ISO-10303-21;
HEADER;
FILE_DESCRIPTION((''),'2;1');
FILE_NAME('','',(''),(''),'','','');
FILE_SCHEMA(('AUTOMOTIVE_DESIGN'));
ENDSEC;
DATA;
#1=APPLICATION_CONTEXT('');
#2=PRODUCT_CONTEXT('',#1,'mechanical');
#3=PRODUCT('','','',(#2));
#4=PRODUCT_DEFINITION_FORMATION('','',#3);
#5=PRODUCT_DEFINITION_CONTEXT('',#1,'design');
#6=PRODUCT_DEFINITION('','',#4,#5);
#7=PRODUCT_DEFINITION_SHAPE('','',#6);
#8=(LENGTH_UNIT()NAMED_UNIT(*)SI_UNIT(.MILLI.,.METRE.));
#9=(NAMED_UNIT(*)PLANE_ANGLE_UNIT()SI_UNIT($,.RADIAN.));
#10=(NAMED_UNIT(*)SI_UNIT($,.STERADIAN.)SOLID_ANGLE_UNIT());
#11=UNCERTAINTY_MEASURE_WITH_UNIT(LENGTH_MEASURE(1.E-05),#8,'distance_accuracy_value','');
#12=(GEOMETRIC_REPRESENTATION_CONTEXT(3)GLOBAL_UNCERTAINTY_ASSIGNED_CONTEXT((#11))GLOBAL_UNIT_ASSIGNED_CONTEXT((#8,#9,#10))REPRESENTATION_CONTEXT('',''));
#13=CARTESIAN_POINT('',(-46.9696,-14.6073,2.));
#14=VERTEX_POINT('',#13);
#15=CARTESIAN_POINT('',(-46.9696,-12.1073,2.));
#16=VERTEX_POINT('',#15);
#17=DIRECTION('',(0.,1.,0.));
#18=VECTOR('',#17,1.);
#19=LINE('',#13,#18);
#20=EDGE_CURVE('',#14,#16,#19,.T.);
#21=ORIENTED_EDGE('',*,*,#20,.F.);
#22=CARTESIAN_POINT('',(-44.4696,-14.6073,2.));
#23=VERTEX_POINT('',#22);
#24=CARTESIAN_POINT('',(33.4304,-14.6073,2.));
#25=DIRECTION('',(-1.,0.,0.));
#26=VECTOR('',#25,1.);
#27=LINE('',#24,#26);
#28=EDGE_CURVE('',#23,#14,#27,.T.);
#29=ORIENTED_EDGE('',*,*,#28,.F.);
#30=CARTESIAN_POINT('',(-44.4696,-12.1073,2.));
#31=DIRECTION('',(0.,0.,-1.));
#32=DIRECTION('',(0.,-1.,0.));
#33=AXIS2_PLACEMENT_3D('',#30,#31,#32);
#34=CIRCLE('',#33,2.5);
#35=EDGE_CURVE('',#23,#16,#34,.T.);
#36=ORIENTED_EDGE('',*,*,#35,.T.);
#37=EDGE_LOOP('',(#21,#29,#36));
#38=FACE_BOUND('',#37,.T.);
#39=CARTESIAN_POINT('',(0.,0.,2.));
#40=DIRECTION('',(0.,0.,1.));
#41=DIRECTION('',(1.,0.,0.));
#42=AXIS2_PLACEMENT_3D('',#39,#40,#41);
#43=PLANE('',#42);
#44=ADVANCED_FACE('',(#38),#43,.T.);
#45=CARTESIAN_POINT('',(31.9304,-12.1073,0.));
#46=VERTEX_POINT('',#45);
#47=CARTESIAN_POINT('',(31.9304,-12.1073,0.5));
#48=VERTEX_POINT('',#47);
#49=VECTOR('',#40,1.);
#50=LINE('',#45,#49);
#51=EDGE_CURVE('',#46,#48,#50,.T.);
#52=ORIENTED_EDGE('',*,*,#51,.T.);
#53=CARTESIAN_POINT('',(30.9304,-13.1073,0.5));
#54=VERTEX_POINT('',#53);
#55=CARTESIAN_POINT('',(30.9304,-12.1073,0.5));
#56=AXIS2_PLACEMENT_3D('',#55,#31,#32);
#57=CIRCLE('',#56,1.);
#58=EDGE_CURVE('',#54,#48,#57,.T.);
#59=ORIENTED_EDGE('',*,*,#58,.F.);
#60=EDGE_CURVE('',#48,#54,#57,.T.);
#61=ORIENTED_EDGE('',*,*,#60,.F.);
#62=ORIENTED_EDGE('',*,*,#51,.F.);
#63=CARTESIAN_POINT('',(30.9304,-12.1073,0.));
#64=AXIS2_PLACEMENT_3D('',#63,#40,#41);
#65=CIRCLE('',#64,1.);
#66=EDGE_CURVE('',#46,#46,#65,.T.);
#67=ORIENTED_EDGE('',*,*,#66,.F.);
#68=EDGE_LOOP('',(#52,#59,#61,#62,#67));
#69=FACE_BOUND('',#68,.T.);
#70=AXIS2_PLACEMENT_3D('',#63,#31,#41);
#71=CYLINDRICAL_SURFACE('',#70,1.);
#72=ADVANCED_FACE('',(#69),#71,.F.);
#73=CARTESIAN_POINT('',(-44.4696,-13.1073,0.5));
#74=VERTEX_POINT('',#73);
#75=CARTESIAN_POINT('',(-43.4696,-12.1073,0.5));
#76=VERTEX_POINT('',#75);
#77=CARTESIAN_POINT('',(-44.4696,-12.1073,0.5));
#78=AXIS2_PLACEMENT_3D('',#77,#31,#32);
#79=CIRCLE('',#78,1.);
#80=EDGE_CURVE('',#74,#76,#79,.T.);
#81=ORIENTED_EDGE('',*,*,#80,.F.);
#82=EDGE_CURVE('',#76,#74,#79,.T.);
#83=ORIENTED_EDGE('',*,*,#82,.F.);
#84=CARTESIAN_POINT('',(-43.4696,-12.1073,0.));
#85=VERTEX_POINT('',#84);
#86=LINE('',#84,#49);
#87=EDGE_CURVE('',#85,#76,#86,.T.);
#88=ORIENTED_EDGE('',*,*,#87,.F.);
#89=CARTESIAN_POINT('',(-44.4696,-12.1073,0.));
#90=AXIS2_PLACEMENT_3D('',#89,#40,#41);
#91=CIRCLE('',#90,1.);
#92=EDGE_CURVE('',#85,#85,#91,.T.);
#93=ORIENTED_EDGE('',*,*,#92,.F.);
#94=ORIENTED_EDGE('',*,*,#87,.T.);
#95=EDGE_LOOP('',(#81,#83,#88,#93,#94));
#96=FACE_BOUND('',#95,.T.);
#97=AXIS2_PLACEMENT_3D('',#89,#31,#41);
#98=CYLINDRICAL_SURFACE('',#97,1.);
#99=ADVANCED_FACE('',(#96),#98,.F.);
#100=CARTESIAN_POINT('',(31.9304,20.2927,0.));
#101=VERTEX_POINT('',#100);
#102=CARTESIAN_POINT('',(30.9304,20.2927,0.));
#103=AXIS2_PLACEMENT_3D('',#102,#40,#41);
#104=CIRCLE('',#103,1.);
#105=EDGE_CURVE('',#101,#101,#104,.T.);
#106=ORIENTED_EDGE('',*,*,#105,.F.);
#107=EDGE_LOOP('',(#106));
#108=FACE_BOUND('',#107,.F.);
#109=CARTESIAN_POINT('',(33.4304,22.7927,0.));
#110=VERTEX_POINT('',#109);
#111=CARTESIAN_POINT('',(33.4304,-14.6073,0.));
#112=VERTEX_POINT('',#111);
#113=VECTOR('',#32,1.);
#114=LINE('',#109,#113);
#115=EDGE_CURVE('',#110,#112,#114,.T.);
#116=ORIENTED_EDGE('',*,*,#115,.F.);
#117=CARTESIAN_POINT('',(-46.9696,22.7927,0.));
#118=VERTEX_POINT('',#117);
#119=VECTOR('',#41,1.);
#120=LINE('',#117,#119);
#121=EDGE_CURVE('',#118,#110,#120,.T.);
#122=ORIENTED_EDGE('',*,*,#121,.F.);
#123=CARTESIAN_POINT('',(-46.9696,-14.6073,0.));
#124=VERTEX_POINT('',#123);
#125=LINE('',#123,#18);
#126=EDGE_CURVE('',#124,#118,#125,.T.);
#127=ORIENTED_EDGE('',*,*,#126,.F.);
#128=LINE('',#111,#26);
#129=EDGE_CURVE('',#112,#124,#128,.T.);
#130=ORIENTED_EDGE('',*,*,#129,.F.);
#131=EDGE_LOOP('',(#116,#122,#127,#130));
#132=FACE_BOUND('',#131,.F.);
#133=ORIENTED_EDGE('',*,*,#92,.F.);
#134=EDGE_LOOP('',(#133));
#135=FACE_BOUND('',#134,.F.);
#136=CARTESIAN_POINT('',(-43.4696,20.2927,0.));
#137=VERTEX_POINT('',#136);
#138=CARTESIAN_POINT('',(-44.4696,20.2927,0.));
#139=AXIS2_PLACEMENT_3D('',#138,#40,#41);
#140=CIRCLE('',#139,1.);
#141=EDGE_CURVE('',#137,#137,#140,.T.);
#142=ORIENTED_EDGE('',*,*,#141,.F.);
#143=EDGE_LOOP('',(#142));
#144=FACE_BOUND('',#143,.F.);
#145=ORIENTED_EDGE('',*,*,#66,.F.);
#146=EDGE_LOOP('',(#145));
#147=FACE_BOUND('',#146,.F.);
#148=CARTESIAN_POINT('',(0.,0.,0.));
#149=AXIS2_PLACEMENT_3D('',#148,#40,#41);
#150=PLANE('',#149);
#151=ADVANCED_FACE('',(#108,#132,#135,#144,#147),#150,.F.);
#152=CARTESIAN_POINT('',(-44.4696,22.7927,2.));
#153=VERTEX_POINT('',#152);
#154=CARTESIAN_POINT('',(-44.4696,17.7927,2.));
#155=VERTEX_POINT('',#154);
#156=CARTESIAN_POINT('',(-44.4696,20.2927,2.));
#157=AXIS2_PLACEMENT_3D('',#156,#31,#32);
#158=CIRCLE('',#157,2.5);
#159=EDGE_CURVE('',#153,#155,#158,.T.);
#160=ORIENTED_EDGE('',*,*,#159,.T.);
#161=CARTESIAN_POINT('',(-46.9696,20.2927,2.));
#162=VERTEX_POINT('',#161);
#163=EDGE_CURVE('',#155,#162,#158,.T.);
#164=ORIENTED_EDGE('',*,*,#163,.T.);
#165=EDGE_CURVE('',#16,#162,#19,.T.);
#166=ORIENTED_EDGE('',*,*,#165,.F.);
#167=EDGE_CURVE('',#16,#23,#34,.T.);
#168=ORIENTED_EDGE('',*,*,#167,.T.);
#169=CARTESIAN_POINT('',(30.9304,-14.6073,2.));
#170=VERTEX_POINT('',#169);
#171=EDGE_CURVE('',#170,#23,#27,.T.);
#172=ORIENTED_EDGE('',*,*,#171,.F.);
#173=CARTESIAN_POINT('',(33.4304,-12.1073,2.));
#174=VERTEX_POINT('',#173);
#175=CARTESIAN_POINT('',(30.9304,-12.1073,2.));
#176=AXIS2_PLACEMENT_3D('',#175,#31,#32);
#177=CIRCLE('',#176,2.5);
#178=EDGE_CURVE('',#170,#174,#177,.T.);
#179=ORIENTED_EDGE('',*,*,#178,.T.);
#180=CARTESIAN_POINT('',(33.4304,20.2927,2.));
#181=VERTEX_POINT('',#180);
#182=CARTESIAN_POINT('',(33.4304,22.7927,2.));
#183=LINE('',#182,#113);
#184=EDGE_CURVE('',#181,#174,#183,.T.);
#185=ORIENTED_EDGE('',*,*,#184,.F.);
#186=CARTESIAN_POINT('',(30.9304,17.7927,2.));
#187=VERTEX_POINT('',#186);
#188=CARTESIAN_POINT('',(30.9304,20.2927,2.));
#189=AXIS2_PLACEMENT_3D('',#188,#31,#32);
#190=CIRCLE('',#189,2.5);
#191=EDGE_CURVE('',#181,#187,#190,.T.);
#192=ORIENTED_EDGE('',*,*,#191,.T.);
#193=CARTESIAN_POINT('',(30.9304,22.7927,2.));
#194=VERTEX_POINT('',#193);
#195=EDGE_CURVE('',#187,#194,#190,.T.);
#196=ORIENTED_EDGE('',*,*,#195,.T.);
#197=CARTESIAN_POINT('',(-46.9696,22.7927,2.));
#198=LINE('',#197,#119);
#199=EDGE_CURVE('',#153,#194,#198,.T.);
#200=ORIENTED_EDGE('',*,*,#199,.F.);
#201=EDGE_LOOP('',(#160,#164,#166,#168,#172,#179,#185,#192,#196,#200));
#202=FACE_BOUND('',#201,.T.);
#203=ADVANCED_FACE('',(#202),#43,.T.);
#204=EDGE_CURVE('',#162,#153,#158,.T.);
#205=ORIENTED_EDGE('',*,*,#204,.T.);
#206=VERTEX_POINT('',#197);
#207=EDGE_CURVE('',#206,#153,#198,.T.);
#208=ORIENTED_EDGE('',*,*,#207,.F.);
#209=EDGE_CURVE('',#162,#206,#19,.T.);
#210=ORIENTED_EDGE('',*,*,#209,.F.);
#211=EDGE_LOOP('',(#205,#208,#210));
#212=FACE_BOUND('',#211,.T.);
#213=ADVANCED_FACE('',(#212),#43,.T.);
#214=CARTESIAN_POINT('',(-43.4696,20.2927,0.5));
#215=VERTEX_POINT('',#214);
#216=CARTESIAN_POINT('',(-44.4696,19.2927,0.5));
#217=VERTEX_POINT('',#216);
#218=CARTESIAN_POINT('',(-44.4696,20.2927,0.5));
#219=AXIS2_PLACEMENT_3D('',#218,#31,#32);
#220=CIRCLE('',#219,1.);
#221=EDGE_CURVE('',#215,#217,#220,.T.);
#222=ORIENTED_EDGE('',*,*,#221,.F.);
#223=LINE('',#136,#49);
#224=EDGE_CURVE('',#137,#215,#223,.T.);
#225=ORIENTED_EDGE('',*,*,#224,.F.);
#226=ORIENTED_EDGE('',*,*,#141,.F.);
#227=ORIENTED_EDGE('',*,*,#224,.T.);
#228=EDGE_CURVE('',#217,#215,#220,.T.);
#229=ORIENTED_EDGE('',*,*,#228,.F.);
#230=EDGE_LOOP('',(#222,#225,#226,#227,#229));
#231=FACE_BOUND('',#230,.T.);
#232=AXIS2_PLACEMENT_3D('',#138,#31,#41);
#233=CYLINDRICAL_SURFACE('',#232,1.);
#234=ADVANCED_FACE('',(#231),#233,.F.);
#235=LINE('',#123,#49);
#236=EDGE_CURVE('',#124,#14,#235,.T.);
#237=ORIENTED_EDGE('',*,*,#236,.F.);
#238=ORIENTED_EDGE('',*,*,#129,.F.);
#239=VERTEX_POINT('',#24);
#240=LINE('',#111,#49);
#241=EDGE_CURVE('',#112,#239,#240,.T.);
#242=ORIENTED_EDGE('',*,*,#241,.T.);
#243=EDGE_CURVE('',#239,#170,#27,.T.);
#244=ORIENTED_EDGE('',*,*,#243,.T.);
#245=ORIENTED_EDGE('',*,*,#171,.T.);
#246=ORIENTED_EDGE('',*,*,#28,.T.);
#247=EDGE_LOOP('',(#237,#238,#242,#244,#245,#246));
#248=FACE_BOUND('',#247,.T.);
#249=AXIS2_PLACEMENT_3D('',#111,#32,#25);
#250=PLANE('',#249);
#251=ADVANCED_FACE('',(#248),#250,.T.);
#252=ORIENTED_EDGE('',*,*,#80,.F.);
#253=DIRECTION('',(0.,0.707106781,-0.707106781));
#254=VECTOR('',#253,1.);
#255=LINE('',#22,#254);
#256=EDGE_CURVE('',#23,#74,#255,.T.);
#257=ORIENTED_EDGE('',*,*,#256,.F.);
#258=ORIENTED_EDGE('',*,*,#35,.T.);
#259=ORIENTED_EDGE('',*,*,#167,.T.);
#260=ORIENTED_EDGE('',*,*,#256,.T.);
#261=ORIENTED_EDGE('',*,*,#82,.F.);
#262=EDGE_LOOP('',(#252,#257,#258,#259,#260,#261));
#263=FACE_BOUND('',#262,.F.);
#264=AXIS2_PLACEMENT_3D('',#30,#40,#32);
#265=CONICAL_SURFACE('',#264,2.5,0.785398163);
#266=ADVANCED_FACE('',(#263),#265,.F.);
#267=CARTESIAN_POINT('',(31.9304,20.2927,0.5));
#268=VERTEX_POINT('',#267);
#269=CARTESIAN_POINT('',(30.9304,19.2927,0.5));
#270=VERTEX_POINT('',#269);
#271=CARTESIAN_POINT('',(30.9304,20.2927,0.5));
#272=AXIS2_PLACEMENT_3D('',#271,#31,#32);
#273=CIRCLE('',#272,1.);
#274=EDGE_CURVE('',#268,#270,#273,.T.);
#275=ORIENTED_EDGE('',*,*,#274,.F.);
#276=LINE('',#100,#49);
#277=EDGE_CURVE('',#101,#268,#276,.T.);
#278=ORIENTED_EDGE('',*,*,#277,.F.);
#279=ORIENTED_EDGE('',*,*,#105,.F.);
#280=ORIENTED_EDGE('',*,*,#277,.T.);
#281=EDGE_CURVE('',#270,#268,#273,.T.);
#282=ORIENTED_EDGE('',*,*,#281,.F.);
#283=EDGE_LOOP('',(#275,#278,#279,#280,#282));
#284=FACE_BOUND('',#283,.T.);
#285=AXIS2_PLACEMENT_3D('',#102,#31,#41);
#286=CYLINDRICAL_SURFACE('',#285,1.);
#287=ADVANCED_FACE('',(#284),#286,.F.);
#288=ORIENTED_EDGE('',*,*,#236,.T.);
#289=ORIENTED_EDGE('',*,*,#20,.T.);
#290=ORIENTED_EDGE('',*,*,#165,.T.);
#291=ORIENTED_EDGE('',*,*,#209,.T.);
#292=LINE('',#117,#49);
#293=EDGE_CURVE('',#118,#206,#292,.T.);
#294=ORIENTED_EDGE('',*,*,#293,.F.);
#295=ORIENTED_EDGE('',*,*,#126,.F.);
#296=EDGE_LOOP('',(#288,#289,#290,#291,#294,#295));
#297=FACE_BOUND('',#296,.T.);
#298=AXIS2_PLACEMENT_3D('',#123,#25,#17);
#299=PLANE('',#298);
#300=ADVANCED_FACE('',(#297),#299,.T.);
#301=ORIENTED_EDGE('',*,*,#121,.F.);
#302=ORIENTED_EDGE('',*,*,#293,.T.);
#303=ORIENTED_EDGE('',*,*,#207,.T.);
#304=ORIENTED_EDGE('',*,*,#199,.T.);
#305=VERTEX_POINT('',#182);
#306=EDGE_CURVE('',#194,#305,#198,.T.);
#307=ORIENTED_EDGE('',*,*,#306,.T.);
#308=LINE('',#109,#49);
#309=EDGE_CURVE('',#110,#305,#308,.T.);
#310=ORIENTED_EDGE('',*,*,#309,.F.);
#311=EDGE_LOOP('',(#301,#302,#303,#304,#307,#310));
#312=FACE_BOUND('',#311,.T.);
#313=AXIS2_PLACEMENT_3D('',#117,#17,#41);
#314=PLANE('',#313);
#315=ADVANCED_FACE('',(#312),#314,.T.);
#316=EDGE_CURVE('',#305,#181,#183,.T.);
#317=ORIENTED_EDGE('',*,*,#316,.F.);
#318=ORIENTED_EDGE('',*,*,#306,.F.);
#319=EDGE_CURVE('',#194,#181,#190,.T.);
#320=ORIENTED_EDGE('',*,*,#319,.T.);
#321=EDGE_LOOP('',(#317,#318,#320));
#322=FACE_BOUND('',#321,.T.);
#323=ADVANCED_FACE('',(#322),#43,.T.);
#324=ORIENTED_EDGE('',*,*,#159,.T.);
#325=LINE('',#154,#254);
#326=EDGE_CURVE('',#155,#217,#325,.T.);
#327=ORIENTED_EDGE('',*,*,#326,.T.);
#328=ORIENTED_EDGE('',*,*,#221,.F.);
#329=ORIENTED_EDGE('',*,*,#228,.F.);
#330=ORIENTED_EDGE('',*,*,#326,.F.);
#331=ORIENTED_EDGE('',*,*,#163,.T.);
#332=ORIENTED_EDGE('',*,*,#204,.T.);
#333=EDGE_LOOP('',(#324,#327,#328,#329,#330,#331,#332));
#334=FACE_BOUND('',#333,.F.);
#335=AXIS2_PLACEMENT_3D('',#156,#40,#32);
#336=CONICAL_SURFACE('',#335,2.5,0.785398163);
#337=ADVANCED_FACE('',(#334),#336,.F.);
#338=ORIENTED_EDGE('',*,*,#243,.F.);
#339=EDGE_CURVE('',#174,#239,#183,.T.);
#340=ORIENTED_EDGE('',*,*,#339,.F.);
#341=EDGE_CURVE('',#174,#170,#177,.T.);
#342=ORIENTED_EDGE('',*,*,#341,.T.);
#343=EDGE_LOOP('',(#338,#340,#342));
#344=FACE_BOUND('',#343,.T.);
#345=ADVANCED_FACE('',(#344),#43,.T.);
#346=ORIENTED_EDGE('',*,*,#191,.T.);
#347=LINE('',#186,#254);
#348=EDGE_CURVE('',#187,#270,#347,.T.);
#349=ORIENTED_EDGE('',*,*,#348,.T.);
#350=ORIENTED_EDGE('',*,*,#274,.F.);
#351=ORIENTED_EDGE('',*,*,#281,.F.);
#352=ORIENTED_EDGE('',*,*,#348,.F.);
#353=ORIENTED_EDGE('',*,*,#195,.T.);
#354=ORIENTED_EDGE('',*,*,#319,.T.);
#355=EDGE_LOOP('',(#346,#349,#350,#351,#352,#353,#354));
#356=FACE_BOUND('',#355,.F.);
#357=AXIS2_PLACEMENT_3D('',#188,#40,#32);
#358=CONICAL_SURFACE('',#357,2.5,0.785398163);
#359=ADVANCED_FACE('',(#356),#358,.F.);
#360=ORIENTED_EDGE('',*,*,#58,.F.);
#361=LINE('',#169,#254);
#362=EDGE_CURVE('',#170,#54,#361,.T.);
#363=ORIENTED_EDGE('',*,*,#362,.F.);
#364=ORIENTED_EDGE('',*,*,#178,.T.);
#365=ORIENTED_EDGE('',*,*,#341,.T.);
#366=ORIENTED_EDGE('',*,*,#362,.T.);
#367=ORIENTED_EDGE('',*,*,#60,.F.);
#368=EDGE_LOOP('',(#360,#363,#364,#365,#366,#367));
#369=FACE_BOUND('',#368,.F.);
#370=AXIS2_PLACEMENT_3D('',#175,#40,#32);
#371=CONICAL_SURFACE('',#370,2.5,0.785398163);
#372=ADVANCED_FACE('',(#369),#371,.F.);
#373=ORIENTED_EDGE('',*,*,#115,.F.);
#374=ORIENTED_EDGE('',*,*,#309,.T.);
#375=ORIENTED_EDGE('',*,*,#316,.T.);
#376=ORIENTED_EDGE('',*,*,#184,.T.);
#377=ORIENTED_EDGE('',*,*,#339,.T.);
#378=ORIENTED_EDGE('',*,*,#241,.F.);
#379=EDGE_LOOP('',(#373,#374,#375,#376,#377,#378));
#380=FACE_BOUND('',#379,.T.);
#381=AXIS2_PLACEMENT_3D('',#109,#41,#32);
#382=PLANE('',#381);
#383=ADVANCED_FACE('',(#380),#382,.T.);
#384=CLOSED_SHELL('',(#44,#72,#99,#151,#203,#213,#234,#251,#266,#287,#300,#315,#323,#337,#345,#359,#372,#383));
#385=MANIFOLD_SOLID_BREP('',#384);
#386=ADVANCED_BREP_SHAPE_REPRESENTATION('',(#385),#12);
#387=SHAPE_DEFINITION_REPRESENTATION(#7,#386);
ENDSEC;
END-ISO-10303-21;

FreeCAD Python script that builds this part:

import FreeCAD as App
import Part
import Sketcher

V = App.Vector


def add_polygon(sketch, points):
    """Adds a closed chain of lines whose ends are joined by coincident constraints."""
    first, n = sketch.GeometryCount, len(points)
    for a, b in zip(points, points[1:] + points[:1]):
        sketch.addGeometry(Part.LineSegment(App.Vector(*a, 0), App.Vector(*b, 0)), False)
    for i in range(n):
        sketch.addConstraint(Sketcher.Constraint("Coincident", first + i, 2, first + (i + 1) % n, 1))

doc = App.newDocument("Part")
body = doc.addObject("PartDesign::Body", "Body")

sketch1 = body.newObject("Sketcher::SketchObject", "Sketch")
sketch1.AttachmentSupport = (doc.getObject("XY_Plane"), [""])
sketch1.MapMode = "FlatFace"
add_polygon(sketch1, [(33.4, 22.8), (-47, 22.8), (-47, -14.6), (33.4, -14.6)])
sketch1.addGeometry(Part.Circle(V(-44.5, -12.1, 0), V(0, 0, 1), 1), False)
sketch1.addGeometry(Part.Circle(V(30.9, -12.1, 0), V(0, 0, 1), 1), False)
sketch1.addGeometry(Part.Circle(V(-44.5, 20.3, 0), V(0, 0, 1), 1), False)
sketch1.addGeometry(Part.Circle(V(30.9, 20.3, 0), V(0, 0, 1), 1), False)
sketch1.addConstraint([
    Sketcher.Constraint("Horizontal", 0),
    Sketcher.Constraint("Vertical", 1),
    Sketcher.Constraint("Horizontal", 2),
    Sketcher.Constraint("Vertical", 3),
    Sketcher.Constraint("Equal", 4, 5),
    Sketcher.Constraint("Equal", 5, 6),
    Sketcher.Constraint("Equal", 6, 7),
    Sketcher.Constraint("Horizontal", 4, 3, 5, 3),
    Sketcher.Constraint("Horizontal", 6, 3, 7, 3),
    Sketcher.Constraint("Vertical", 4, 3, 6, 3),
    Sketcher.Constraint("Vertical", 5, 3, 7, 3),
    Sketcher.Constraint("Diameter", 4, 2.0),
    Sketcher.Constraint("DistanceX", 0, 2, 0, 1, 80.4),
    Sketcher.Constraint("DistanceY", 1, 2, 1, 1, 37.4),
    Sketcher.Constraint("DistanceX", 4, 3, 5, 3, 75.4),
    Sketcher.Constraint("DistanceY", 4, 3, 6, 3, 32.4),
    Sketcher.Constraint("DistanceX", 0, 2, 6, 3, 2.5),
    Sketcher.Constraint("DistanceY", 6, 3, 0, 2, 2.5),
    Sketcher.Constraint("DistanceX", 4, 3, -1, 1, 44.4696),
    Sketcher.Constraint("DistanceY", 4, 3, -1, 1, 12.1073),
])
pad1 = body.newObject("PartDesign::Pad", "Pad")
pad1.Profile = sketch1
pad1.Length = 2

sketch2 = body.newObject("Sketcher::SketchObject", "Sketch001")
sketch2.AttachmentSupport = (doc.getObject("XY_Plane"), [""])
sketch2.MapMode = "FlatFace"
sketch2.AttachmentOffset = App.Placement(V(0, 0, 2), App.Rotation())
sketch2.addGeometry([
    Part.Circle(V(-44.5, 20.3, 0), V(0, 0, 1), 1),
    Part.Circle(V(-44.5, -12.1, 0), V(0, 0, 1), 1),
    Part.Circle(V(30.9, -12.1, 0), V(0, 0, 1), 1),
    Part.Circle(V(30.9, 20.3, 0), V(0, 0, 1), 1),
], False)
sketch2.addConstraint([
    Sketcher.Constraint("Equal", 0, 1),
    Sketcher.Constraint("Equal", 1, 2),
    Sketcher.Constraint("Equal", 2, 3),
    Sketcher.Constraint("Horizontal", 1, 3, 2, 3),
    Sketcher.Constraint("Horizontal", 0, 3, 3, 3),
    Sketcher.Constraint("Vertical", 0, 3, 1, 3),
    Sketcher.Constraint("Vertical", 2, 3, 3, 3),
    Sketcher.Constraint("Diameter", 0, 2.0),
    Sketcher.Constraint("DistanceY", 1, 3, 0, 3, 32.4),
    Sketcher.Constraint("DistanceX", 1, 3, 2, 3, 75.4),
    Sketcher.Constraint("DistanceX", 0, 3, -1, 1, 44.4696),
    Sketcher.Constraint("DistanceY", -1, 1, 0, 3, 20.2927),
])
doc.recompute()
hole = body.newObject("PartDesign::Hole", "Hole")
hole.Profile = sketch2
hole.ThreadType = "None"
hole.Diameter = 2
hole.DepthType = "Dimension"
hole.Depth = 8
hole.DrillPoint = "Angled"
hole.DrillPointAngle = 118
hole.HoleCutType = "Countersink"
hole.HoleCutDiameter = 5
hole.HoleCutCountersinkAngle = 90

doc.recompute()
